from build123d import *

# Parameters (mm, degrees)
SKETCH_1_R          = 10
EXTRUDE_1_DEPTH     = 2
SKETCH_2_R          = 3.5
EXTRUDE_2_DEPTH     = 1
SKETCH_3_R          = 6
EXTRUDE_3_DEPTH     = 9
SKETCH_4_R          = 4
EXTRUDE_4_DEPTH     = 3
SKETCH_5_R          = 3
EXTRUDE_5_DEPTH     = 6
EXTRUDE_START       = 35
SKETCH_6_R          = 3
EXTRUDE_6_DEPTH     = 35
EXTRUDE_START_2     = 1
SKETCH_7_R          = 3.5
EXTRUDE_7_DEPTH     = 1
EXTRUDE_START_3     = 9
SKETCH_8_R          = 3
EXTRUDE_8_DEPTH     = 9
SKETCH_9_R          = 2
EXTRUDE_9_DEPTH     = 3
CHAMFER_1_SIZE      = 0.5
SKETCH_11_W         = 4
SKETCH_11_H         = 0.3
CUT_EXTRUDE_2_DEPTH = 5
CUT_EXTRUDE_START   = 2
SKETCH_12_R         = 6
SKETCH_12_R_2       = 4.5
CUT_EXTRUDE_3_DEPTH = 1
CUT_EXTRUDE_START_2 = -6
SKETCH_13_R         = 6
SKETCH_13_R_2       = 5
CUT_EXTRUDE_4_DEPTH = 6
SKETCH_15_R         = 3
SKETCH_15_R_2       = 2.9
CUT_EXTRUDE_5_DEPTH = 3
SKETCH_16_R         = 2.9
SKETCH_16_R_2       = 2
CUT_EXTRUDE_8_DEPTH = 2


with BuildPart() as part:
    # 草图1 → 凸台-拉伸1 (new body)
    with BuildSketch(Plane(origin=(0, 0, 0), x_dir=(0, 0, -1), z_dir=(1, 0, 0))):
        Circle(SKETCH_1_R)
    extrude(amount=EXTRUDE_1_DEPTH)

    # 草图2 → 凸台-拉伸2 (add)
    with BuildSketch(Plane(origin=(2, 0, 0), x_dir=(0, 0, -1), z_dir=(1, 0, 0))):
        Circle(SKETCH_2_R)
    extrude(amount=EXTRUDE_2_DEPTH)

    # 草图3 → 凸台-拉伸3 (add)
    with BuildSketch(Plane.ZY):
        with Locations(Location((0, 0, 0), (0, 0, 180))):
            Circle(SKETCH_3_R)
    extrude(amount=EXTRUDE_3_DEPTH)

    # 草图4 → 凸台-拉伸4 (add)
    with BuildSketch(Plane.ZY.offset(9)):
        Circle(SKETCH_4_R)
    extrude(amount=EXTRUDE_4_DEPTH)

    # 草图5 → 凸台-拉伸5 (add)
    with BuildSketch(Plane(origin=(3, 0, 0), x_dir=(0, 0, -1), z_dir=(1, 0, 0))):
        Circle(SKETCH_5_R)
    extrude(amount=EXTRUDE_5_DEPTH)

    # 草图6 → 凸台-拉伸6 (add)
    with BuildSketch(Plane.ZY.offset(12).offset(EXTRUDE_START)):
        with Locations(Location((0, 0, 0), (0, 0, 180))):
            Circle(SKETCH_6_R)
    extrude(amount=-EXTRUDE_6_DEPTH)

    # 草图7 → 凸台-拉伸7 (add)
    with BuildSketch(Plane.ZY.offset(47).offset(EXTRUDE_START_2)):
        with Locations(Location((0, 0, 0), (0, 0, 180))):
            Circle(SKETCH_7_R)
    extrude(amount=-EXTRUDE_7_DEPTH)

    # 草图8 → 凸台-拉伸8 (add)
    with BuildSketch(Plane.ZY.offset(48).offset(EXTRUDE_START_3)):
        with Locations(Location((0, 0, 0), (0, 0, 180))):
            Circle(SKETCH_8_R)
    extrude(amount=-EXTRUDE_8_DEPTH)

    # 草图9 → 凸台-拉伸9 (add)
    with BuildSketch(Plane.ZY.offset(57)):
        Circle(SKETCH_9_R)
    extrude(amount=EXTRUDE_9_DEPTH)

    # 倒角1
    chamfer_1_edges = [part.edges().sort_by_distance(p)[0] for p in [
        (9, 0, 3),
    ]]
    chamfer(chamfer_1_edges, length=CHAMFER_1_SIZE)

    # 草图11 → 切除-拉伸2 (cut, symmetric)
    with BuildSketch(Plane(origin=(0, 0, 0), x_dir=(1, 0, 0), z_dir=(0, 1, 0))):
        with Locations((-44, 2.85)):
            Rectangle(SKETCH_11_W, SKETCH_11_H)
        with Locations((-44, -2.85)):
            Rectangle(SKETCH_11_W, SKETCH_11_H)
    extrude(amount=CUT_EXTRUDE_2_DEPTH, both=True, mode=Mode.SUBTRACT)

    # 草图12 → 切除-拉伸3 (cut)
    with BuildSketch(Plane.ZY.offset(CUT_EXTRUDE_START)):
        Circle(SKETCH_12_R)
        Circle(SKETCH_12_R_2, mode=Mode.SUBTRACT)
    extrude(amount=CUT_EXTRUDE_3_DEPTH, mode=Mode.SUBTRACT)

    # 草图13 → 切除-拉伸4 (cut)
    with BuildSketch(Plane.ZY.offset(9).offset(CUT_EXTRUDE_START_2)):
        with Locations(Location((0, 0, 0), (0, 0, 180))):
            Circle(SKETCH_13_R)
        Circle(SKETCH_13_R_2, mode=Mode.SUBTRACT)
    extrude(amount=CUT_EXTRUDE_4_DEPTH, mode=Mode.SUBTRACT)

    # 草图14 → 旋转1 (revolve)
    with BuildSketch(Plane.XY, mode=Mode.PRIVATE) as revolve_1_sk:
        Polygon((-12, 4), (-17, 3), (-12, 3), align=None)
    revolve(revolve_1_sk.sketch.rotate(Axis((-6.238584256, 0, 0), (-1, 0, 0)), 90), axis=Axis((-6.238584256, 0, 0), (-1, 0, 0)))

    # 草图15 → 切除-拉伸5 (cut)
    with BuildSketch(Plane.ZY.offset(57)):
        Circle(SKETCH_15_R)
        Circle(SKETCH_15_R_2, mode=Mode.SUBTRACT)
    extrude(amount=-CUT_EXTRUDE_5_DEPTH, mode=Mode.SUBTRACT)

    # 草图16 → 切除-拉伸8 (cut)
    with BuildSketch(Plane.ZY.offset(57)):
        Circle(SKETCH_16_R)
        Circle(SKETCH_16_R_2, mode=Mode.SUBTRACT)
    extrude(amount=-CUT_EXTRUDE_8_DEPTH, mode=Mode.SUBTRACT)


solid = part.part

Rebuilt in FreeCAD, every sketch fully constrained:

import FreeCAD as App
import Part
import Sketcher


def edges_at(feature, points):
    """Names of the edges that pass closest to the given points."""
    edges = feature.Shape.Edges
    near = lambda p: min(range(len(edges)), key=lambda i: edges[i].distToShape(Part.Vertex(*p))[0])
    return sorted({f"Edge{near(p) + 1}" for p in points})


def add_polygon(sketch, points):
    """Adds a closed chain of lines whose ends are joined by coincident constraints."""
    first, n = sketch.GeometryCount, len(points)
    for a, b in zip(points, points[1:] + points[:1]):
        sketch.addGeometry(Part.LineSegment(App.Vector(*a, 0), App.Vector(*b, 0)), False)
    for i in range(n):
        sketch.addConstraint(Sketcher.Constraint("Coincident", first + i, 2, first + (i + 1) % n, 1))

doc = App.newDocument("Part")
body = doc.addObject("PartDesign::Body", "Body")

# Sketch on YZ plane
sketch1 = body.newObject("Sketcher::SketchObject", "Sketch")
sketch1.AttachmentSupport = (doc.getObject("YZ_Plane"), [""])
sketch1.MapMode = "FlatFace"
sketch1.addGeometry(Part.Circle(App.Vector(0, 0, 0), App.Vector(0, 0, 1), 10), False)
sketch1.addConstraint(Sketcher.Constraint("Coincident", 0, 3, -1, 1))
sketch1.addConstraint(Sketcher.Constraint("Diameter", 0, 20.0))
pad1 = body.newObject("PartDesign::Pad", "Pad")
pad1.Profile = sketch1
pad1.Length = 2

# Sketch on YZ plane
sketch2 = body.newObject("Sketcher::SketchObject", "Sketch001")
sketch2.AttachmentSupport = (doc.getObject("YZ_Plane"), [""])
sketch2.MapMode = "FlatFace"
sketch2.AttachmentOffset = App.Placement(App.Vector(0, 0, 2), App.Rotation())
sketch2.addGeometry(Part.Circle(App.Vector(0, 0, 0), App.Vector(0, 0, 1), 3.5), False)
sketch2.addConstraint(Sketcher.Constraint("Coincident", 0, 3, -1, 1))
sketch2.addConstraint(Sketcher.Constraint("Diameter", 0, 7.0))
pad2 = body.newObject("PartDesign::Pad", "Pad001")
pad2.Profile = sketch2
pad2.Length = 1

# Sketch on YZ plane
sketch3 = body.newObject("Sketcher::SketchObject", "Sketch002")
sketch3.AttachmentSupport = (doc.getObject("YZ_Plane"), [""])
sketch3.MapMode = "FlatFace"
sketch3.addGeometry(Part.Circle(App.Vector(0, 0, 0), App.Vector(0, 0, 1), 6), False)
sketch3.addConstraint(Sketcher.Constraint("Coincident", 0, 3, -1, 1))
sketch3.addConstraint(Sketcher.Constraint("Diameter", 0, 12.0))
pad3 = body.newObject("PartDesign::Pad", "Pad002")
pad3.Profile = sketch3
pad3.Length = 9
pad3.Reversed = True

# Sketch on YZ plane
sketch4 = body.newObject("Sketcher::SketchObject", "Sketch003")
sketch4.AttachmentSupport = (doc.getObject("YZ_Plane"), [""])
sketch4.MapMode = "FlatFace"
sketch4.AttachmentOffset = App.Placement(App.Vector(0, 0, -9), App.Rotation())
sketch4.addGeometry(Part.Circle(App.Vector(0, 0, 0), App.Vector(0, 0, 1), 4), False)
sketch4.addConstraint(Sketcher.Constraint("Coincident", 0, 3, -1, 1))
sketch4.addConstraint(Sketcher.Constraint("Diameter", 0, 8.0))
pad4 = body.newObject("PartDesign::Pad", "Pad003")
pad4.Profile = sketch4
pad4.Length = 3
pad4.Reversed = True

# Sketch on YZ plane
sketch5 = body.newObject("Sketcher::SketchObject", "Sketch004")
sketch5.AttachmentSupport = (doc.getObject("YZ_Plane"), [""])
sketch5.MapMode = "FlatFace"
sketch5.AttachmentOffset = App.Placement(App.Vector(0, 0, 3), App.Rotation())
sketch5.addGeometry(Part.Circle(App.Vector(0, 0, 0), App.Vector(0, 0, 1), 3), False)
sketch5.addConstraint(Sketcher.Constraint("Coincident", 0, 3, -1, 1))
sketch5.addConstraint(Sketcher.Constraint("Diameter", 0, 6.0))
pad5 = body.newObject("PartDesign::Pad", "Pad004")
pad5.Profile = sketch5
pad5.Length = 6

# Sketch on YZ plane
sketch6 = body.newObject("Sketcher::SketchObject", "Sketch005")
sketch6.AttachmentSupport = (doc.getObject("YZ_Plane"), [""])
sketch6.MapMode = "FlatFace"
sketch6.AttachmentOffset = App.Placement(App.Vector(0, 0, -47), App.Rotation())
sketch6.addGeometry(Part.Circle(App.Vector(0, 0, 0), App.Vector(0, 0, 1), 3), False)
sketch6.addConstraint(Sketcher.Constraint("Coincident", 0, 3, -1, 1))
sketch6.addConstraint(Sketcher.Constraint("Diameter", 0, 6.0))
pad6 = body.newObject("PartDesign::Pad", "Pad005")
pad6.Profile = sketch6
pad6.Length = 35

# Sketch on YZ plane
sketch7 = body.newObject("Sketcher::SketchObject", "Sketch006")
sketch7.AttachmentSupport = (doc.getObject("YZ_Plane"), [""])
sketch7.MapMode = "FlatFace"
sketch7.AttachmentOffset = App.Placement(App.Vector(0, 0, -48), App.Rotation())
sketch7.addGeometry(Part.Circle(App.Vector(0, 0, 0), App.Vector(0, 0, 1), 3.5), False)
sketch7.addConstraint(Sketcher.Constraint("Coincident", 0, 3, -1, 1))
sketch7.addConstraint(Sketcher.Constraint("Diameter", 0, 7.0))
pad7 = body.newObject("PartDesign::Pad", "Pad006")
pad7.Profile = sketch7
pad7.Length = 1

# Sketch on YZ plane
sketch8 = body.newObject("Sketcher::SketchObject", "Sketch007")
sketch8.AttachmentSupport = (doc.getObject("YZ_Plane"), [""])
sketch8.MapMode = "FlatFace"
sketch8.AttachmentOffset = App.Placement(App.Vector(0, 0, -57), App.Rotation())
sketch8.addGeometry(Part.Circle(App.Vector(0, 0, 0), App.Vector(0, 0, 1), 3), False)
sketch8.addConstraint(Sketcher.Constraint("Coincident", 0, 3, -1, 1))
sketch8.addConstraint(Sketcher.Constraint("Diameter", 0, 6.0))
pad8 = body.newObject("PartDesign::Pad", "Pad007")
pad8.Profile = sketch8
pad8.Length = 9

# Sketch on YZ plane
sketch9 = body.newObject("Sketcher::SketchObject", "Sketch008")
sketch9.AttachmentSupport = (doc.getObject("YZ_Plane"), [""])
sketch9.MapMode = "FlatFace"
sketch9.AttachmentOffset = App.Placement(App.Vector(0, 0, -57), App.Rotation())
sketch9.addGeometry(Part.Circle(App.Vector(0, 0, 0), App.Vector(0, 0, 1), 2), False)
sketch9.addConstraint(Sketcher.Constraint("Coincident", 0, 3, -1, 1))
sketch9.addConstraint(Sketcher.Constraint("Diameter", 0, 4.0))
pad9 = body.newObject("PartDesign::Pad", "Pad008")
pad9.Profile = sketch9
pad9.Length = 3
pad9.Reversed = True
doc.recompute()

chamfer = body.newObject("PartDesign::Chamfer", "Chamfer")
chamfer.Base = (pad9, edges_at(pad9, [(9, 0, 3)]))
chamfer.Size = 0.5

# Sketch on XZ plane
sketch10 = body.newObject("Sketcher::SketchObject", "Sketch009")
sketch10.AttachmentSupport = (doc.getObject("XZ_Plane"), [""])
sketch10.MapMode = "FlatFace"
add_polygon(sketch10, [(-46, -3), (-46, -2.7), (-42, -2.7), (-42, -3)])  # lines 0-3
add_polygon(sketch10, [(-46, 2.7), (-46, 3), (-42, 3), (-42, 2.7)])  # lines 4-7
sketch10.addConstraint(Sketcher.Constraint("Vertical", 0))
sketch10.addConstraint(Sketcher.Constraint("Horizontal", 1))
sketch10.addConstraint(Sketcher.Constraint("Vertical", 2))
sketch10.addConstraint(Sketcher.Constraint("Horizontal", 3))
sketch10.addConstraint(Sketcher.Constraint("Vertical", 4))
sketch10.addConstraint(Sketcher.Constraint("Horizontal", 5))
sketch10.addConstraint(Sketcher.Constraint("Vertical", 6))
sketch10.addConstraint(Sketcher.Constraint("Horizontal", 7))
sketch10.addConstraint(Sketcher.Constraint("Symmetric", 3, 2, 4, 2, -1))
sketch10.addConstraint(Sketcher.Constraint("Symmetric", 1, 2, 6, 2, -1))
sketch10.addConstraint(Sketcher.Constraint("DistanceX", 1, 1, 1, 2, 4.0))
sketch10.addConstraint(Sketcher.Constraint("DistanceY", 0, 1, 0, 2, 0.3))
sketch10.addConstraint(Sketcher.Constraint("DistanceX", 0, 2, -1, 1, 46.0))
sketch10.addConstraint(Sketcher.Constraint("DistanceY", 2, 2, -1, 1, 3.0))
pocket1 = body.newObject("PartDesign::Pocket", "Pocket")
pocket1.Profile = sketch10
pocket1.Length = 10
pocket1.Midplane = True

# Sketch on YZ plane
sketch11 = body.newObject("Sketcher::SketchObject", "Sketch010")
sketch11.AttachmentSupport = (doc.getObject("YZ_Plane"), [""])
sketch11.MapMode = "FlatFace"
sketch11.AttachmentOffset = App.Placement(App.Vector(0, 0, -2), App.Rotation())
sketch11.addGeometry(Part.Circle(App.Vector(0, 0, 0), App.Vector(0, 0, 1), 6), False)
sketch11.addGeometry(Part.Circle(App.Vector(0, 0, 0), App.Vector(0, 0, 1), 4.5), False)
sketch11.addConstraint(Sketcher.Constraint("Coincident", 0, 3, -1, 1))
sketch11.addConstraint(Sketcher.Constraint("Coincident", 1, 3, -1, 1))
sketch11.addConstraint(Sketcher.Constraint("Diameter", 0, 12.0))
sketch11.addConstraint(Sketcher.Constraint("Diameter", 1, 9.0))
pocket2 = body.newObject("PartDesign::Pocket", "Pocket001")
pocket2.Profile = sketch11
pocket2.Length = 1

# Sketch on YZ plane
sketch12 = body.newObject("Sketcher::SketchObject", "Sketch011")
sketch12.AttachmentSupport = (doc.getObject("YZ_Plane"), [""])
sketch12.MapMode = "FlatFace"
sketch12.AttachmentOffset = App.Placement(App.Vector(0, 0, -3), App.Rotation())
sketch12.addGeometry(Part.Circle(App.Vector(0, 0, 0), App.Vector(0, 0, 1), 6), False)
sketch12.addGeometry(Part.Circle(App.Vector(0, 0, 0), App.Vector(0, 0, 1), 5), False)
sketch12.addConstraint(Sketcher.Constraint("Coincident", 0, 3, -1, 1))
sketch12.addConstraint(Sketcher.Constraint("Coincident", 1, 3, -1, 1))
sketch12.addConstraint(Sketcher.Constraint("Diameter", 0, 12.0))
sketch12.addConstraint(Sketcher.Constraint("Diameter", 1, 10.0))
pocket3 = body.newObject("PartDesign::Pocket", "Pocket002")
pocket3.Profile = sketch12
pocket3.Length = 6

# Sketch on XY plane
sketch13 = body.newObject("Sketcher::SketchObject", "Sketch012")
sketch13.AttachmentSupport = (doc.getObject("XY_Plane"), [""])
sketch13.MapMode = "FlatFace"
add_polygon(sketch13, [(-12, 4), (-17, 3), (-12, 3)])  # lines 0-2
sketch13.addConstraint(Sketcher.Constraint("Horizontal", 1))
sketch13.addConstraint(Sketcher.Constraint("Vertical", 2))
sketch13.addConstraint(Sketcher.Constraint("DistanceX", 1, 1, 1, 2, 5.0))
sketch13.addConstraint(Sketcher.Constraint("DistanceY", 2, 1, 2, 2, 1.0))
sketch13.addConstraint(Sketcher.Constraint("DistanceX", 0, 2, -1, 1, 17.0))
sketch13.addConstraint(Sketcher.Constraint("DistanceY", -1, 1, 0, 2, 3.0))
revolution = body.newObject("PartDesign::Revolution", "Revolution")
revolution.Profile = sketch13
revolution.ReferenceAxis = (sketch13, ["H_Axis"])
revolution.Angle = 360

# Sketch on YZ plane
sketch14 = body.newObject("Sketcher::SketchObject", "Sketch013")
sketch14.AttachmentSupport = (doc.getObject("YZ_Plane"), [""])
sketch14.MapMode = "FlatFace"
sketch14.AttachmentOffset = App.Placement(App.Vector(0, 0, -57), App.Rotation())
sketch14.addGeometry(Part.Circle(App.Vector(0, 0, 0), App.Vector(0, 0, 1), 3), False)
sketch14.addGeometry(Part.Circle(App.Vector(0, 0, 0), App.Vector(0, 0, 1), 2.9), False)
sketch14.addConstraint(Sketcher.Constraint("Coincident", 0, 3, -1, 1))
sketch14.addConstraint(Sketcher.Constraint("Coincident", 1, 3, -1, 1))
sketch14.addConstraint(Sketcher.Constraint("Diameter", 0, 6.0))
sketch14.addConstraint(Sketcher.Constraint("Diameter", 1, 5.8))
pocket4 = body.newObject("PartDesign::Pocket", "Pocket003")
pocket4.Profile = sketch14
pocket4.Length = 3
pocket4.Reversed = True

# Sketch on YZ plane
sketch15 = body.newObject("Sketcher::SketchObject", "Sketch014")
sketch15.AttachmentSupport = (doc.getObject("YZ_Plane"), [""])
sketch15.MapMode = "FlatFace"
sketch15.AttachmentOffset = App.Placement(App.Vector(0, 0, -57), App.Rotation())
sketch15.addGeometry(Part.Circle(App.Vector(0, 0, 0), App.Vector(0, 0, 1), 2.9), False)
sketch15.addGeometry(Part.Circle(App.Vector(0, 0, 0), App.Vector(0, 0, 1), 2), False)
sketch15.addConstraint(Sketcher.Constraint("Coincident", 0, 3, -1, 1))
sketch15.addConstraint(Sketcher.Constraint("Coincident", 1, 3, -1, 1))
sketch15.addConstraint(Sketcher.Constraint("Diameter", 1, 4.0))
sketch15.addConstraint(Sketcher.Constraint("Diameter", 0, 5.8))
pocket5 = body.newObject("PartDesign::Pocket", "Pocket004")
pocket5.Profile = sketch15
pocket5.Length = 2
pocket5.Reversed = True

doc.recompute()
